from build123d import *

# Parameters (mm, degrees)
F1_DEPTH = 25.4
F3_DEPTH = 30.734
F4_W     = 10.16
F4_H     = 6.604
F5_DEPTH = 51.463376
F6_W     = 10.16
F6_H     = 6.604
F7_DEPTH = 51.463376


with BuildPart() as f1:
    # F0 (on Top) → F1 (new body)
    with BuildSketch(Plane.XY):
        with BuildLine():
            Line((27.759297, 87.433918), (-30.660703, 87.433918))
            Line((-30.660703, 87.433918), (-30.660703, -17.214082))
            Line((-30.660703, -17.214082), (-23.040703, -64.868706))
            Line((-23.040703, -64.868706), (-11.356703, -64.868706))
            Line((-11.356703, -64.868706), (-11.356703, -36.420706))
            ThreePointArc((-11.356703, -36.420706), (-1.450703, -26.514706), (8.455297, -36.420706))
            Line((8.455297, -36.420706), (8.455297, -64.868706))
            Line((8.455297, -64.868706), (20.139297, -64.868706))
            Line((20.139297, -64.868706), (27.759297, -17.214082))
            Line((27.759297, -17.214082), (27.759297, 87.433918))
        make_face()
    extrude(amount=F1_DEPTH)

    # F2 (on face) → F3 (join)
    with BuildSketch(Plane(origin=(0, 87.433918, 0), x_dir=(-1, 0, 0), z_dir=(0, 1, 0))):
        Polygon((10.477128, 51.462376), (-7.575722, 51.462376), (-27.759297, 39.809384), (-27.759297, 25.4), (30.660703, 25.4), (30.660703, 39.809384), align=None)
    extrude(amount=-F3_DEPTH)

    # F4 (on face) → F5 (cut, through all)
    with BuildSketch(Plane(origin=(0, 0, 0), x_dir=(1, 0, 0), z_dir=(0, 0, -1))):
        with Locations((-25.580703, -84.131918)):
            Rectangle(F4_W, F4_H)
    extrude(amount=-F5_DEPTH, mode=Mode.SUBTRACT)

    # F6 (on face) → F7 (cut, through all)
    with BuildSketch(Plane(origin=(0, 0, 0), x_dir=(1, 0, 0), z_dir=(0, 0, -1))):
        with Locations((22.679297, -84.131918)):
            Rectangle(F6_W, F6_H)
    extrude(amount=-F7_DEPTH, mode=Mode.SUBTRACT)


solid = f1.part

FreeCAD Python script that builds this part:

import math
import FreeCAD as App
import Part
import Sketcher

V = App.Vector
Q = App.Units.Quantity

doc = App.newDocument("Part")
params = doc.addObject("Spreadsheet::Sheet", "Params")
for row, (alias, value) in enumerate([
    ("sketch1_radius", "0.39 in"),
    ("sketch1_width", "2.3 in"),
    ("sketch1_length", "1.9 in"),
    ("sketch1_width2", "0.46 in"),
    ("sketch1_height", "4.12 in"),
    ("pad1_length", "1 in"),
    ("sketch2_width", "2.3 in"),
    ("pad2_length", "1.21 in"),
    ("sketch3_width", "0.4 in"),
    ("sketch3_height", "0.26 in"),
    ("sketch4_width", "0.4 in"),
    ("sketch4_height", "0.26 in"),
], start=1):
    params.set(f"A{row}", alias)
    params.set(f"B{row}", "=" + value)
    params.setAlias(f"B{row}", alias)

body = doc.addObject("PartDesign::Body", "Body")

sketch1 = body.newObject("Sketcher::SketchObject", "Sketch")
sketch1.AttachmentSupport = (doc.getObject("XY_Plane"), [""])
sketch1.MapMode = "FlatFace"
sketch1.addGeometry(Part.LineSegment(V(27.759297, 87.433918, 0), V(-30.660703, 87.433918, 0)), False)
sketch1.addGeometry(Part.LineSegment(V(-30.660703, 87.433918, 0), V(-30.660703, -17.214082, 0)), False)
sketch1.addGeometry(Part.LineSegment(V(-30.660703, -17.214082, 0), V(-23.040703, -64.868706, 0)), False)
sketch1.addGeometry(Part.LineSegment(V(-23.040703, -64.868706, 0), V(-11.356703, -64.868706, 0)), False)
sketch1.addGeometry(Part.LineSegment(V(-11.356703, -64.868706, 0), V(-11.356703, -36.420706, 0)), False)
sketch1.addGeometry(Part.ArcOfCircle(Part.Circle(V(-1.450703, -36.420706, 0), V(0, 0, 1), 9.906), math.radians(0), math.radians(180)), False)
sketch1.addGeometry(Part.LineSegment(V(8.455297, -36.420706, 0), V(8.455297, -64.868706, 0)), False)
sketch1.addGeometry(Part.LineSegment(V(8.455297, -64.868706, 0), V(20.139297, -64.868706, 0)), False)
sketch1.addGeometry(Part.LineSegment(V(20.139297, -64.868706, 0), V(27.759297, -17.214082, 0)), False)
sketch1.addGeometry(Part.LineSegment(V(27.759297, -17.214082, 0), V(27.759297, 87.433918, 0)), False)
sketch1.addConstraint(Sketcher.Constraint("Coincident", 0, 2, 1, 1))
sketch1.addConstraint(Sketcher.Constraint("Coincident", 1, 2, 2, 1))
sketch1.addConstraint(Sketcher.Constraint("Coincident", 2, 2, 3, 1))
sketch1.addConstraint(Sketcher.Constraint("Coincident", 3, 2, 4, 1))
sketch1.addConstraint(Sketcher.Constraint("Tangent", 4, 2, 5, 2))
sketch1.addConstraint(Sketcher.Constraint("Tangent", 5, 1, 6, 1))
sketch1.addConstraint(Sketcher.Constraint("Coincident", 6, 2, 7, 1))
sketch1.addConstraint(Sketcher.Constraint("Coincident", 7, 2, 8, 1))
sketch1.addConstraint(Sketcher.Constraint("Coincident", 8, 2, 9, 1))
sketch1.addConstraint(Sketcher.Constraint("Coincident", 9, 2, 0, 1))
sketch1.addConstraint(Sketcher.Constraint("Horizontal", 0))
sketch1.addConstraint(Sketcher.Constraint("Vertical", 1))
sketch1.addConstraint(Sketcher.Constraint("Horizontal", 3))
sketch1.addConstraint(Sketcher.Constraint("Vertical", 4))
sketch1.addConstraint(Sketcher.Constraint("Vertical", 6))
sketch1.addConstraint(Sketcher.Constraint("Horizontal", 7))
sketch1.addConstraint(Sketcher.Constraint("Vertical", 9))
sketch1.addConstraint(Sketcher.Constraint("Horizontal", 3, 2, 6, 2))
sketch1.addConstraint(Sketcher.Constraint("Horizontal", 1, 2, 8, 2))
sketch1.addConstraint(Sketcher.Constraint("Equal", 3, 7))
sketch1.addConstraint(Sketcher.Constraint("Equal", 2, 8))
sketch1.addConstraint(Sketcher.Constraint("Radius", 5, Q("0.39 in")))
sketch1.addConstraint(Sketcher.Constraint("DistanceX", 0, 2, 0, 1, Q("2.3 in")))
sketch1.addConstraint(Sketcher.Constraint("Distance", 2, Q("1.9 in")))
sketch1.addConstraint(Sketcher.Constraint("DistanceX", 3, 1, 3, 2, Q("0.46 in")))
sketch1.addConstraint(Sketcher.Constraint("DistanceY", 1, 2, 1, 1, Q("4.12 in")))
sketch1.addConstraint(Sketcher.Constraint("DistanceY", 4, 1, 4, 2, Q("1.12 in")))
sketch1.addConstraint(Sketcher.Constraint("DistanceY", -1, 1, 0, 2, 87.433918))
sketch1.addConstraint(Sketcher.Constraint("DistanceX", 5, 3, -1, 1, 1.450703))
sketch1.setExpression("Constraints[21]", "Params.sketch1_radius")
sketch1.setExpression("Constraints[22]", "Params.sketch1_width")
sketch1.setExpression("Constraints[23]", "Params.sketch1_length")
sketch1.setExpression("Constraints[24]", "Params.sketch1_width2")
sketch1.setExpression("Constraints[25]", "Params.sketch1_height")
pad1 = body.newObject("PartDesign::Pad", "Pad")
pad1.Profile = sketch1
pad1.setExpression("Length", "Params.pad1_length")

sketch2 = body.newObject("Sketcher::SketchObject", "Sketch001")
sketch2.AttachmentSupport = (doc.getObject("XZ_Plane"), [""])
sketch2.MapMode = "FlatFace"
sketch2.AttachmentOffset = App.Placement(V(0, 0, -87.433918), App.Rotation())
sketch2.addGeometry(Part.LineSegment(V(-10.477128, 51.462376, 0), V(7.575722, 51.462376, 0)), False)
sketch2.addGeometry(Part.LineSegment(V(7.575722, 51.462376, 0), V(27.759297, 39.809384, 0)), False)
sketch2.addGeometry(Part.LineSegment(V(27.759297, 39.809384, 0), V(27.759297, 25.4, 0)), False)
sketch2.addGeometry(Part.LineSegment(V(27.759297, 25.4, 0), V(-30.660703, 25.4, 0)), False)
sketch2.addGeometry(Part.LineSegment(V(-30.660703, 25.4, 0), V(-30.660703, 39.809384, 0)), False)
sketch2.addGeometry(Part.LineSegment(V(-30.660703, 39.809384, 0), V(-10.477128, 51.462376, 0)), False)
sketch2.addConstraint(Sketcher.Constraint("Coincident", 0, 2, 1, 1))
sketch2.addConstraint(Sketcher.Constraint("Coincident", 1, 2, 2, 1))
sketch2.addConstraint(Sketcher.Constraint("Coincident", 2, 2, 3, 1))
sketch2.addConstraint(Sketcher.Constraint("Coincident", 3, 2, 4, 1))
sketch2.addConstraint(Sketcher.Constraint("Coincident", 4, 2, 5, 1))
sketch2.addConstraint(Sketcher.Constraint("Coincident", 5, 2, 0, 1))
sketch2.addConstraint(Sketcher.Constraint("Horizontal", 0))
sketch2.addConstraint(Sketcher.Constraint("Vertical", 2))
sketch2.addConstraint(Sketcher.Constraint("Horizontal", 3))
sketch2.addConstraint(Sketcher.Constraint("Vertical", 4))
sketch2.addConstraint(Sketcher.Constraint("Horizontal", 1, 2, 4, 2))
sketch2.addConstraint(Sketcher.Constraint("Equal", 1, 5))
sketch2.addConstraint(Sketcher.Constraint("DistanceX", 3, 2, 3, 1, Q("2.3 in")))
sketch2.addConstraint(Sketcher.Constraint("DistanceY", -1, 1, 2, 2, Q("1 in")))
sketch2.addConstraint(Sketcher.Constraint("Angle", 1, Q("-29.999999 deg")))
sketch2.addConstraint(Sketcher.Constraint("DistanceX", 0, 1, 0, 2, 18.05285))
sketch2.addConstraint(Sketcher.Constraint("DistanceY", 2, 2, 2, 1, 14.409384))
sketch2.addConstraint(Sketcher.Constraint("DistanceX", -1, 1, 0, 2, 7.575722))
sketch2.setExpression("Constraints[12]", "Params.sketch2_width")
pad2 = body.newObject("PartDesign::Pad", "Pad001")
pad2.Profile = sketch2
pad2.setExpression("Length", "Params.pad2_length")

sketch3 = body.newObject("Sketcher::SketchObject", "Sketch002")
sketch3.AttachmentSupport = (doc.getObject("XY_Plane"), [""])
sketch3.MapMode = "FlatFace"
sketch3.addGeometry(Part.LineSegment(V(-30.660703, 80.829918, 0), V(-30.660703, 87.433918, 0)), False)
sketch3.addGeometry(Part.LineSegment(V(-30.660703, 87.433918, 0), V(-20.500703, 87.433918, 0)), False)
sketch3.addGeometry(Part.LineSegment(V(-20.500703, 87.433918, 0), V(-20.500703, 80.829918, 0)), False)
sketch3.addGeometry(Part.LineSegment(V(-20.500703, 80.829918, 0), V(-30.660703, 80.829918, 0)), False)
sketch3.addConstraint(Sketcher.Constraint("Coincident", 0, 2, 1, 1))
sketch3.addConstraint(Sketcher.Constraint("Coincident", 1, 2, 2, 1))
sketch3.addConstraint(Sketcher.Constraint("Coincident", 2, 2, 3, 1))
sketch3.addConstraint(Sketcher.Constraint("Coincident", 3, 2, 0, 1))
sketch3.addConstraint(Sketcher.Constraint("Vertical", 0))
sketch3.addConstraint(Sketcher.Constraint("Horizontal", 1))
sketch3.addConstraint(Sketcher.Constraint("Vertical", 2))
sketch3.addConstraint(Sketcher.Constraint("Horizontal", 3))
sketch3.addConstraint(Sketcher.Constraint("DistanceX", 1, 1, 1, 2, Q("0.4 in")))
sketch3.addConstraint(Sketcher.Constraint("DistanceY", 0, 1, 0, 2, Q("0.26 in")))
sketch3.addConstraint(Sketcher.Constraint("DistanceY", -1, 1, 0, 2, 87.433918))
sketch3.addConstraint(Sketcher.Constraint("DistanceX", 0, 2, -1, 1, 30.660703))
sketch3.setExpression("Constraints[8]", "Params.sketch3_width")
sketch3.setExpression("Constraints[9]", "Params.sketch3_height")
pocket1 = body.newObject("PartDesign::Pocket", "Pocket")
pocket1.Profile = sketch3
pocket1.Type = "ThroughAll"
pocket1.Reversed = True

sketch4 = body.newObject("Sketcher::SketchObject", "Sketch003")
sketch4.AttachmentSupport = (doc.getObject("XY_Plane"), [""])
sketch4.MapMode = "FlatFace"
sketch4.addGeometry(Part.LineSegment(V(17.599297, 80.829918, 0), V(17.599297, 87.433918, 0)), False)
sketch4.addGeometry(Part.LineSegment(V(17.599297, 87.433918, 0), V(27.759297, 87.433918, 0)), False)
sketch4.addGeometry(Part.LineSegment(V(27.759297, 87.433918, 0), V(27.759297, 80.829918, 0)), False)
sketch4.addGeometry(Part.LineSegment(V(27.759297, 80.829918, 0), V(17.599297, 80.829918, 0)), False)
sketch4.addConstraint(Sketcher.Constraint("Coincident", 0, 2, 1, 1))
sketch4.addConstraint(Sketcher.Constraint("Coincident", 1, 2, 2, 1))
sketch4.addConstraint(Sketcher.Constraint("Coincident", 2, 2, 3, 1))
sketch4.addConstraint(Sketcher.Constraint("Coincident", 3, 2, 0, 1))
sketch4.addConstraint(Sketcher.Constraint("Vertical", 0))
sketch4.addConstraint(Sketcher.Constraint("Horizontal", 1))
sketch4.addConstraint(Sketcher.Constraint("Vertical", 2))
sketch4.addConstraint(Sketcher.Constraint("Horizontal", 3))
sketch4.addConstraint(Sketcher.Constraint("DistanceX", 1, 1, 1, 2, Q("0.4 in")))
sketch4.addConstraint(Sketcher.Constraint("DistanceY", 0, 1, 0, 2, Q("0.26 in")))
sketch4.addConstraint(Sketcher.Constraint("DistanceY", -1, 1, 0, 2, 87.433918))
sketch4.addConstraint(Sketcher.Constraint("DistanceX", -1, 1, 0, 2, 17.599297))
sketch4.setExpression("Constraints[8]", "Params.sketch4_width")
sketch4.setExpression("Constraints[9]", "Params.sketch4_height")
pocket2 = body.newObject("PartDesign::Pocket", "Pocket001")
pocket2.Profile = sketch4
pocket2.Type = "ThroughAll"
pocket2.Reversed = True

doc.recompute()
